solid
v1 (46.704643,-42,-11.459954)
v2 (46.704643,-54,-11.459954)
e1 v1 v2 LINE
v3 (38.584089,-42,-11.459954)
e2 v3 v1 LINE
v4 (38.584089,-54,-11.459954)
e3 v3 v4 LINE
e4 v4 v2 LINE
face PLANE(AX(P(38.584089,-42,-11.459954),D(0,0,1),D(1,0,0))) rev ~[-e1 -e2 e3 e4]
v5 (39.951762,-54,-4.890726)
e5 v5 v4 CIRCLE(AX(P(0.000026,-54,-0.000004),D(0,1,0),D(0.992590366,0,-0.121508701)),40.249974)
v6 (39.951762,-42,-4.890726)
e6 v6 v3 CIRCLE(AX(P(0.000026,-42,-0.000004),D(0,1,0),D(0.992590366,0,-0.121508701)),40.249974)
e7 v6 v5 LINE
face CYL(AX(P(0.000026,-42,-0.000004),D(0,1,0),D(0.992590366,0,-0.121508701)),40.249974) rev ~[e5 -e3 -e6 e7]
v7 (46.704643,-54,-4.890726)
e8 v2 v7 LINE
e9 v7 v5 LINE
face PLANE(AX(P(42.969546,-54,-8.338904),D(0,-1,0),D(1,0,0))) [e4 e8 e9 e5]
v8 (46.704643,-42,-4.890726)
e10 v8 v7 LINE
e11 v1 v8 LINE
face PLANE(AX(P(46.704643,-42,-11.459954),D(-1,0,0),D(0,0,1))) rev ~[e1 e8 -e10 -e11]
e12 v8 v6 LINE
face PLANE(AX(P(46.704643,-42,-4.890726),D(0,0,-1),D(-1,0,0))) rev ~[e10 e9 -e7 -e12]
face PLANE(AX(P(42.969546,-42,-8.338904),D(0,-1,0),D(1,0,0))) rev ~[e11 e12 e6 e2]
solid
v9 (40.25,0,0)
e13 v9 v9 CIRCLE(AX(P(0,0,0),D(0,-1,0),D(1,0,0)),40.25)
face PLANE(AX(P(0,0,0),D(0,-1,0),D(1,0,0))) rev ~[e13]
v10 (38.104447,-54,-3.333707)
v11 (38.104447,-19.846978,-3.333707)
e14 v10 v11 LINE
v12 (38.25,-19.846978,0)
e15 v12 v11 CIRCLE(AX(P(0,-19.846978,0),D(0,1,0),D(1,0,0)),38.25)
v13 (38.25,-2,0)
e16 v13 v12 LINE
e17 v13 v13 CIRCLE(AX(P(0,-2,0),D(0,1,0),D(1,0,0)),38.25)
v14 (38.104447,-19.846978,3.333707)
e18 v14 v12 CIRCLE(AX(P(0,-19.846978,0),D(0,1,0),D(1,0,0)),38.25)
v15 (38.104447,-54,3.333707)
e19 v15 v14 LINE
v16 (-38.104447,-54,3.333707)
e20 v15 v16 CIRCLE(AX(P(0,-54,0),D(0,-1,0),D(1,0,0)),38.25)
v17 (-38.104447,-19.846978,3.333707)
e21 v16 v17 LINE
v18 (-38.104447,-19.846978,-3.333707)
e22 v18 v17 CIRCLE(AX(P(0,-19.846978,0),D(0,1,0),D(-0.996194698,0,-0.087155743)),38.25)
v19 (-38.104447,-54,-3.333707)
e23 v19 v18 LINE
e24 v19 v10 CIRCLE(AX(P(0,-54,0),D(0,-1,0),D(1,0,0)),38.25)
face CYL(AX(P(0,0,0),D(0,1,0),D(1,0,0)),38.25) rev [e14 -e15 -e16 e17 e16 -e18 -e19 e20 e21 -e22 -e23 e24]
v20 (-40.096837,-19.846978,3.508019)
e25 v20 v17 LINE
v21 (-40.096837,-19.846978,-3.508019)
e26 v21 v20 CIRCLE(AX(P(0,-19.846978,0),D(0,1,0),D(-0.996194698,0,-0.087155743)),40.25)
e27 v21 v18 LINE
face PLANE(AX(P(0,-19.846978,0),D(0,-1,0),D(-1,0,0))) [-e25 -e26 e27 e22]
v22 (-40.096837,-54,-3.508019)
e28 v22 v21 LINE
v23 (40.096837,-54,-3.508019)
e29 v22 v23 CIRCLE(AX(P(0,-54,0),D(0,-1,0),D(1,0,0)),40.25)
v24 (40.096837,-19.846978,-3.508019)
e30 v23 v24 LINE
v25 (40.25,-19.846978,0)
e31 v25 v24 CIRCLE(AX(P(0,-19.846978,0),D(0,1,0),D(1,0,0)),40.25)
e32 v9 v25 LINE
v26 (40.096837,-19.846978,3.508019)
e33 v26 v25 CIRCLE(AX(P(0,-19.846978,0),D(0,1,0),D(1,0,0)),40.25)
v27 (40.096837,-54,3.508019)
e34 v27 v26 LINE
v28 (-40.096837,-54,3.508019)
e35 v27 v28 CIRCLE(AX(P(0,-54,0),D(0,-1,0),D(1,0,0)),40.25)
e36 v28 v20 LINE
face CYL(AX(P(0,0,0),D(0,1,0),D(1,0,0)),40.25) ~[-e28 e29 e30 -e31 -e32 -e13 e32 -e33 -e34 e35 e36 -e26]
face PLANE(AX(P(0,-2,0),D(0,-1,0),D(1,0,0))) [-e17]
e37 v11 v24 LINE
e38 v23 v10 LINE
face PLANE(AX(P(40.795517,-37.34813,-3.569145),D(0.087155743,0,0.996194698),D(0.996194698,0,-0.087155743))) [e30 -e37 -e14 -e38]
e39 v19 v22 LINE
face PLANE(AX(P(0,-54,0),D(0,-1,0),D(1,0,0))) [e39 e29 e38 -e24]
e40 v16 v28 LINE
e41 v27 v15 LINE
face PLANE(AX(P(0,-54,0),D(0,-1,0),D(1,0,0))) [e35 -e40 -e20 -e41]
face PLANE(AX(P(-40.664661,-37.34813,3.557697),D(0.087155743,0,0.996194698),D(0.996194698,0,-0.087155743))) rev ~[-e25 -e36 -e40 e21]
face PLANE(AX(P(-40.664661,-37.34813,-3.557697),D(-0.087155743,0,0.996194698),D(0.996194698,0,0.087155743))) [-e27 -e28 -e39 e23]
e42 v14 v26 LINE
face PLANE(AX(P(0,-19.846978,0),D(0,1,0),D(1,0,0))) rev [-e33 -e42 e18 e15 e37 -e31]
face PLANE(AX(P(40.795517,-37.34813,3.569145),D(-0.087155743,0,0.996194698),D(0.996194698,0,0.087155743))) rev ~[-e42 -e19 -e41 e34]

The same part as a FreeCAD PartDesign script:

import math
import FreeCAD as App
import Part
import Sketcher


def faces_at(feature, points):
    """Names of the faces that lie closest to the given points."""
    faces = feature.Shape.Faces
    near = lambda p: min(range(len(faces)), key=lambda i: faces[i].distToShape(Part.Vertex(*p))[0])
    return sorted({f"Face{near(p) + 1}" for p in points})


def add_polygon(sketch, points):
    """Adds a closed chain of lines whose ends are joined by coincident constraints."""
    first, n = sketch.GeometryCount, len(points)
    for a, b in zip(points, points[1:] + points[:1]):
        sketch.addGeometry(Part.LineSegment(App.Vector(*a, 0), App.Vector(*b, 0)), False)
    for i in range(n):
        sketch.addConstraint(Sketcher.Constraint("Coincident", first + i, 2, first + (i + 1) % n, 1))

doc = App.newDocument("Part")
params = doc.addObject("Spreadsheet::Sheet", "Params")
for row, (alias, value) in enumerate([
    ("sketch1_diameter", "80.5 mm"),
    ("pad1_length", "54 mm"),
    ("thickness_wall", "2 mm"),
    ("groove_angle", "5 deg"),
    ("groove2_angle", "5 deg"),
    ("pad2_length", "12 mm"),
], start=1):
    params.set(f"A{row}", alias)
    params.set(f"B{row}", "=" + value)
    params.setAlias(f"B{row}", alias)

body = doc.addObject("PartDesign::Body", "Body")

sketch1 = body.newObject("Sketcher::SketchObject", "Sketch")
sketch1.AttachmentSupport = (doc.getObject("XZ_Plane"), [""])
sketch1.MapMode = "FlatFace"
sketch1.addGeometry(Part.Circle(App.Vector(0, 0, 0), App.Vector(0, 0, 1), 40.25), False)
sketch1.addConstraint([
    Sketcher.Constraint("Coincident", 0, 3, -1, 1),
    Sketcher.Constraint("Diameter", 0, 80.5),
])
sketch1.setExpression("Constraints[1]", "Params.sketch1_diameter")
pad1 = body.newObject("PartDesign::Pad", "Pad")
pad1.Profile = sketch1
pad1.setExpression("Length", "Params.pad1_length")
doc.recompute()

thickness = body.newObject("PartDesign::Thickness", "Thickness")
thickness.Base = (pad1, faces_at(pad1, [(0, -54, 0)]))
thickness.setExpression("Value", "Params.thickness_wall")
thickness.Reversed = True
thickness.Join = "Arc"

sketch2 = body.newObject("Sketcher::SketchObject", "Sketch001")
sketch2.AttachmentSupport = (doc.getObject("XY_Plane"), [""])
sketch2.MapMode = "FlatFace"
add_polygon(sketch2, [(37.674539, -19.846978), (37.674539, -54.849282), (44.228159, -54.849282), (44.228159, -19.846978)])
add_polygon(sketch2, [(-43.94786, -19.846978), (-43.94786, -54.849282), (-37.692126, -54.849282), (-37.692126, -19.846978)])
sketch2.addConstraint([
    Sketcher.Constraint("Vertical", 0),
    Sketcher.Constraint("Horizontal", 1),
    Sketcher.Constraint("Vertical", 2),
    Sketcher.Constraint("Horizontal", 3),
    Sketcher.Constraint("Vertical", 4),
    Sketcher.Constraint("Horizontal", 5),
    Sketcher.Constraint("Vertical", 6),
    Sketcher.Constraint("Horizontal", 7),
    Sketcher.Constraint("Horizontal", 1, 2, 4, 2),
    Sketcher.Constraint("Horizontal", 3, 2, 6, 2),
    Sketcher.Constraint("DistanceX", 1, 1, 1, 2, 6.55362),
    Sketcher.Constraint("DistanceX", 4, 2, 0, 2, 81.6224),
    Sketcher.Constraint("DistanceX", 5, 1, 5, 2, 6.255735),
    Sketcher.Constraint("DistanceY", 0, 2, 0, 1, 35.002304),
    Sketcher.Constraint("DistanceX", -1, 1, 0, 2, 37.674539),
    Sketcher.Constraint("DistanceY", 2, 2, -1, 1, 19.846978),
])
groove = body.newObject("PartDesign::Groove", "Groove")
groove.Profile = sketch2
groove.ReferenceAxis = (sketch2, ["V_Axis"])
groove.setExpression("Angle", "Params.groove_angle")
groove.Reversed = True

sketch3 = body.newObject("Sketcher::SketchObject", "Sketch002")
sketch3.AttachmentSupport = (doc.getObject("XY_Plane"), [""])
sketch3.MapMode = "FlatFace"
add_polygon(sketch3, [(37.674539, -19.846978), (37.674539, -54.849282), (44.228159, -54.849282), (44.228159, -19.846978)])
add_polygon(sketch3, [(-43.94786, -19.846978), (-43.94786, -54.849282), (-37.692126, -54.849282), (-37.692126, -19.846978)])
sketch3.addConstraint([
    Sketcher.Constraint("Vertical", 0),
    Sketcher.Constraint("Horizontal", 1),
    Sketcher.Constraint("Vertical", 2),
    Sketcher.Constraint("Horizontal", 3),
    Sketcher.Constraint("Vertical", 4),
    Sketcher.Constraint("Horizontal", 5),
    Sketcher.Constraint("Vertical", 6),
    Sketcher.Constraint("Horizontal", 7),
    Sketcher.Constraint("Horizontal", 1, 2, 4, 2),
    Sketcher.Constraint("Horizontal", 3, 2, 6, 2),
    Sketcher.Constraint("DistanceX", 1, 1, 1, 2, 6.55362),
    Sketcher.Constraint("DistanceX", 4, 2, 0, 2, 81.6224),
    Sketcher.Constraint("DistanceX", 5, 1, 5, 2, 6.255735),
    Sketcher.Constraint("DistanceY", 0, 2, 0, 1, 35.002304),
    Sketcher.Constraint("DistanceX", -1, 1, 0, 2, 37.674539),
    Sketcher.Constraint("DistanceY", 2, 2, -1, 1, 19.846978),
])
groove2 = body.newObject("PartDesign::Groove", "Groove001")
groove2.Profile = sketch3
groove2.ReferenceAxis = (sketch3, ["V_Axis"])
groove2.setExpression("Angle", "Params.groove2_angle")
body2 = doc.addObject("PartDesign::Body", "Body001")

sketch4 = body2.newObject("Sketcher::SketchObject", "Sketch003")
sketch4.AttachmentSupport = (doc.getObject("XZ_Plane001"), [""])
sketch4.MapMode = "FlatFace"
sketch4.addGeometry([
    Part.LineSegment(App.Vector(46.704643, -4.890726, 0), App.Vector(39.951762, -4.890726, 0)),
    Part.ArcOfCircle(Part.Circle(App.Vector(0.000026, -0.000004, 0), App.Vector(0, 0, 1), 40.249974), math.radians(-16.542079), math.radians(-6.979182)),
    Part.LineSegment(App.Vector(38.584089, -11.459954, 0), App.Vector(46.704643, -11.459954, 0)),
    Part.LineSegment(App.Vector(46.704643, -11.459954, 0), App.Vector(46.704643, -4.890726, 0)),
], False)
sketch4.addConstraint([
    Sketcher.Constraint("Coincident", 0, 2, 1, 2),
    Sketcher.Constraint("Coincident", 1, 1, 2, 1),
    Sketcher.Constraint("Coincident", 2, 2, 3, 1),
    Sketcher.Constraint("Coincident", 3, 2, 0, 1),
    Sketcher.Constraint("Horizontal", 0),
    Sketcher.Constraint("Horizontal", 2),
    Sketcher.Constraint("Vertical", 3),
    Sketcher.Constraint("Radius", 1, 40.249974),
    Sketcher.Constraint("DistanceX", 0, 2, 0, 1, 6.752881),
    Sketcher.Constraint("DistanceX", 2, 1, 2, 2, 8.120554),
    Sketcher.Constraint("DistanceY", 3, 1, 3, 2, 6.569228),
    Sketcher.Constraint("DistanceX", -1, 1, 1, 1, 38.584089),
    Sketcher.Constraint("DistanceY", 0, 2, -1, 1, 4.890726),
])
pad2 = body2.newObject("PartDesign::Pad", "Pad001")
pad2.Profile = sketch4
pad2.setExpression("Length", "Params.pad2_length")
body3 = doc.addObject("PartDesign::Body", "Body002")
doc.recompute()

body2.Placement = App.Placement(App.Vector(0, -42, 0), App.Rotation(App.Vector(0, 0, 1), 0))
boolean = body3.newObject("PartDesign::Boolean", "Boolean")
boolean.Type = "Fuse"
boolean.addObjects([body2])

doc.recompute()
